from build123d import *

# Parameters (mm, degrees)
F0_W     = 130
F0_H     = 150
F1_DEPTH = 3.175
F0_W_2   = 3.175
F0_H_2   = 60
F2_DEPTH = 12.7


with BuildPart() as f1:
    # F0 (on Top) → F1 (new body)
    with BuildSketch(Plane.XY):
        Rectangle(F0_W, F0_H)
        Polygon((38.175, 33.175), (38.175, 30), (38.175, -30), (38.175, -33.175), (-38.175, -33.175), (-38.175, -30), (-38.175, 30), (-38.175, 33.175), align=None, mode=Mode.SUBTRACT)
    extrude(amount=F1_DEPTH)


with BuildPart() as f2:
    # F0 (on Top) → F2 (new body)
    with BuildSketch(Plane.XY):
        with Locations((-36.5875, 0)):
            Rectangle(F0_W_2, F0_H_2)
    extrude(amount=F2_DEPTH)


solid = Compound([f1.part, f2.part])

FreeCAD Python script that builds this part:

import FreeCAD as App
import Part
import Sketcher
Q = App.Units.Quantity

doc = App.newDocument("Part")
params = doc.addObject("Spreadsheet::Sheet", "Params")
for row, (alias, value) in enumerate([
    ("sketch1_width", "130 mm"),
    ("sketch1_height", "150 mm"),
    ("sketch1_width2", "76.35 mm"),
    ("sketch1_height2", "66.35 mm"),
    ("pad1_length", "3.175 mm"),
    ("sketch2_height", "60 mm"),
    ("pad2_length", "12.7 mm"),
], start=1):
    params.set(f"A{row}", alias)
    params.set(f"B{row}", "=" + value)
    params.setAlias(f"B{row}", alias)

body = doc.addObject("PartDesign::Body", "Body")

# Sketch on XY plane
sketch1 = body.newObject("Sketcher::SketchObject", "Sketch")
sketch1.AttachmentSupport = (doc.getObject("XY_Plane"), [""])
sketch1.MapMode = "FlatFace"
sketch1.addGeometry([
    Part.LineSegment(App.Vector(-65, 75, 0), App.Vector(-65, -75, 0)),  # 0
    Part.LineSegment(App.Vector(-65, -75, 0), App.Vector(65, -75, 0)),  # 1
    Part.LineSegment(App.Vector(65, -75, 0), App.Vector(65, 75, 0)),  # 2
    Part.LineSegment(App.Vector(65, 75, 0), App.Vector(-65, 75, 0)),  # 3
    Part.LineSegment(App.Vector(-38, 33, 0), App.Vector(38, 33, 0)),  # 4
    Part.LineSegment(App.Vector(38, 33, 0), App.Vector(38, -33, 0)),  # 5
    Part.LineSegment(App.Vector(38, -33, 0), App.Vector(-38, -33, 0)),  # 6
    Part.LineSegment(App.Vector(-38, -33, 0), App.Vector(-38, 33, 0)),  # 7
], False)
sketch1.addConstraint([
    Sketcher.Constraint("Coincident", 0, 2, 1, 1),
    Sketcher.Constraint("Coincident", 1, 2, 2, 1),
    Sketcher.Constraint("Coincident", 2, 2, 3, 1),
    Sketcher.Constraint("Coincident", 3, 2, 0, 1),
    Sketcher.Constraint("Coincident", 4, 2, 5, 1),
    Sketcher.Constraint("Coincident", 5, 2, 6, 1),
    Sketcher.Constraint("Coincident", 6, 2, 7, 1),
    Sketcher.Constraint("Coincident", 7, 2, 4, 1),
    Sketcher.Constraint("Vertical", 0),
    Sketcher.Constraint("Horizontal", 1),
    Sketcher.Constraint("Vertical", 2),
    Sketcher.Constraint("Horizontal", 3),
    Sketcher.Constraint("Horizontal", 4),
    Sketcher.Constraint("Vertical", 5),
    Sketcher.Constraint("Horizontal", 6),
    Sketcher.Constraint("Vertical", 7),
    Sketcher.Constraint("Symmetric", 0, 2, 2, 2, -1, 1),
    Sketcher.Constraint("Symmetric", 4, 2, 6, 2, -1, 1),
    Sketcher.Constraint("DistanceX", 1, 1, 1, 2, Q("130 mm")),
    Sketcher.Constraint("DistanceY", 0, 2, 0, 1, Q("150 mm")),
    Sketcher.Constraint("DistanceX", 4, 1, 4, 2, Q("76.35 mm")),
    Sketcher.Constraint("DistanceY", 5, 2, 5, 1, Q("66.35 mm")),
])
sketch1.setExpression("Constraints[18]", "Params.sketch1_width")
sketch1.setExpression("Constraints[19]", "Params.sketch1_height")
sketch1.setExpression("Constraints[20]", "Params.sketch1_width2")
sketch1.setExpression("Constraints[21]", "Params.sketch1_height2")
pad1 = body.newObject("PartDesign::Pad", "Pad")
pad1.Profile = sketch1
pad1.setExpression("Length", "Params.pad1_length")
body2 = doc.addObject("PartDesign::Body", "Body001")

# Sketch on XY plane
sketch2 = body2.newObject("Sketcher::SketchObject", "Sketch001")
sketch2.AttachmentSupport = (doc.getObject("XY_Plane001"), [""])
sketch2.MapMode = "FlatFace"
sketch2.addGeometry([
    Part.LineSegment(App.Vector(-38.2, 30, 0), App.Vector(-38.2, -30, 0)),
    Part.LineSegment(App.Vector(-38.2, -30, 0), App.Vector(-35, -30, 0)),
    Part.LineSegment(App.Vector(-35, -30, 0), App.Vector(-35, 30, 0)),
    Part.LineSegment(App.Vector(-35, 30, 0), App.Vector(-38.2, 30, 0)),
], False)
sketch2.addConstraint([
    Sketcher.Constraint("Coincident", 0, 2, 1, 1),
    Sketcher.Constraint("Coincident", 1, 2, 2, 1),
    Sketcher.Constraint("Coincident", 2, 2, 3, 1),
    Sketcher.Constraint("Coincident", 3, 2, 0, 1),
    Sketcher.Constraint("Vertical", 0),
    Sketcher.Constraint("Horizontal", 1),
    Sketcher.Constraint("Vertical", 2),
    Sketcher.Constraint("Horizontal", 3),
    Sketcher.Constraint("DistanceY", 0, 2, 0, 1, Q("60 mm")),
    Sketcher.Constraint("DistanceY", 0, 2, -1, 1, Q("30 mm")),
    Sketcher.Constraint("DistanceX", 1, 2, -1, 1, Q("35 mm")),
    Sketcher.Constraint("DistanceX", 1, 1, 1, 2, Q("3.175 mm")),
])
sketch2.setExpression("Constraints[8]", "Params.sketch2_height")
pad2 = body2.newObject("PartDesign::Pad", "Pad001")
pad2.Profile = sketch2
pad2.setExpression("Length", "Params.pad2_length")

doc.recompute()
